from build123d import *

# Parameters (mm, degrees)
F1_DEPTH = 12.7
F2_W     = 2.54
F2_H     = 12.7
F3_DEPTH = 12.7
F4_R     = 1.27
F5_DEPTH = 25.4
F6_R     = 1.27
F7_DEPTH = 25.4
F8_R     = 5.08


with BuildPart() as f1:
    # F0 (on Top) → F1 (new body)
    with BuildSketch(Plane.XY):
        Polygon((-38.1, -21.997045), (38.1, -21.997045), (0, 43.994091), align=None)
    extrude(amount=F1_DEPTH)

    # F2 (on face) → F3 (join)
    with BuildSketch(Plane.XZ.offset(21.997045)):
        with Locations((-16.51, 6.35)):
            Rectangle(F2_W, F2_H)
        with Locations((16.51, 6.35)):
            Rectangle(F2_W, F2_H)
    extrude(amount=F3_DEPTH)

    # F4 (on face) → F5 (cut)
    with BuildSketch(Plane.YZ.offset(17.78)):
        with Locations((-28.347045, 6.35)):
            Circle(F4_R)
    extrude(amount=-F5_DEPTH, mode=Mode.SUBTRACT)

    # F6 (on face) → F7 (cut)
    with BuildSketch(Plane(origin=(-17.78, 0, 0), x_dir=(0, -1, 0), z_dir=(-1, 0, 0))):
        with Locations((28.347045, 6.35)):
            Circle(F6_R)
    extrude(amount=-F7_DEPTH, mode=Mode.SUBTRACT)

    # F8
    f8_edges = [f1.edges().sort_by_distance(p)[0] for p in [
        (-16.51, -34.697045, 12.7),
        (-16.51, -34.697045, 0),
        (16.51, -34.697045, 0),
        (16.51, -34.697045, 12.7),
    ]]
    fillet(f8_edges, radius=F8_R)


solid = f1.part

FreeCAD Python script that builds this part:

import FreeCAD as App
import Part
import Sketcher

V = App.Vector
Q = App.Units.Quantity


def edges_at(feature, points):
    """Names of the edges that pass closest to the given points."""
    edges = feature.Shape.Edges
    near = lambda p: min(range(len(edges)), key=lambda i: edges[i].distToShape(Part.Vertex(*p))[0])
    return sorted({f"Edge{near(p) + 1}" for p in points})

doc = App.newDocument("Part")
body = doc.addObject("PartDesign::Body", "Body")

# Sketch on XY plane
sketch1 = body.newObject("Sketcher::SketchObject", "Sketch")
sketch1.AttachmentSupport = (doc.getObject("XY_Plane"), [""])
sketch1.MapMode = "FlatFace"
sketch1.addGeometry([
    Part.LineSegment(V(-38, -22, 0), V(38, -22, 0)),
    Part.LineSegment(V(38, -22, 0), V(0, 44, 0)),
    Part.LineSegment(V(0, 44, 0), V(-38, -22, 0)),
], False)
sketch1.addConstraint([
    Sketcher.Constraint("Coincident", 0, 2, 1, 1),
    Sketcher.Constraint("Coincident", 1, 2, 2, 1),
    Sketcher.Constraint("Coincident", 2, 2, 0, 1),
    Sketcher.Constraint("Horizontal", 0),
    Sketcher.Constraint("PointOnObject", 1, 2, -2),
    Sketcher.Constraint("Equal", 1, 2),
    Sketcher.Constraint("DistanceX", 0, 1, 0, 2, Q("3 in")),
    Sketcher.Constraint("Distance", 1, Q("3 in")),
    Sketcher.Constraint("DistanceY", -1, 1, 1, 2, 43.994091),
])
pad1 = body.newObject("PartDesign::Pad", "Pad")
pad1.Profile = sketch1
pad1.Length = Q("0.5 in")

# Sketch on XZ plane
sketch2 = body.newObject("Sketcher::SketchObject", "Sketch001")
sketch2.AttachmentSupport = (doc.getObject("XZ_Plane"), [""])
sketch2.MapMode = "FlatFace"
sketch2.AttachmentOffset = App.Placement(V(0, 0, 21.997045), App.Rotation())
sketch2.addGeometry([
    Part.LineSegment(V(-17.8, 12.7, 0), V(-17.8, 0, 0)),  # 0
    Part.LineSegment(V(-17.8, 0, 0), V(-15.2, 0, 0)),  # 1
    Part.LineSegment(V(-15.2, 0, 0), V(-15.2, 12.7, 0)),  # 2
    Part.LineSegment(V(-15.2, 12.7, 0), V(-17.8, 12.7, 0)),  # 3
    Part.LineSegment(V(15.2, 12.7, 0), V(15.2, 0, 0)),  # 4
    Part.LineSegment(V(15.2, 0, 0), V(17.8, 0, 0)),  # 5
    Part.LineSegment(V(17.8, 0, 0), V(17.8, 12.7, 0)),  # 6
    Part.LineSegment(V(17.8, 12.7, 0), V(15.2, 12.7, 0)),  # 7
], False)
sketch2.addConstraint([
    Sketcher.Constraint("Coincident", 0, 2, 1, 1),
    Sketcher.Constraint("Coincident", 1, 2, 2, 1),
    Sketcher.Constraint("Coincident", 2, 2, 3, 1),
    Sketcher.Constraint("Coincident", 3, 2, 0, 1),
    Sketcher.Constraint("Coincident", 4, 2, 5, 1),
    Sketcher.Constraint("Coincident", 5, 2, 6, 1),
    Sketcher.Constraint("Coincident", 6, 2, 7, 1),
    Sketcher.Constraint("Coincident", 7, 2, 4, 1),
    Sketcher.Constraint("Vertical", 0),
    Sketcher.Constraint("Horizontal", 1),
    Sketcher.Constraint("Vertical", 2),
    Sketcher.Constraint("Horizontal", 3),
    Sketcher.Constraint("Vertical", 4),
    Sketcher.Constraint("Horizontal", 5),
    Sketcher.Constraint("Vertical", 6),
    Sketcher.Constraint("Horizontal", 7),
    Sketcher.Constraint("Symmetric", 1, 2, 4, 2, -1, 1),
    Sketcher.Constraint("Symmetric", 0, 2, 5, 2, -2),
    Sketcher.Constraint("Horizontal", 3, 2, 6, 2),
    Sketcher.Constraint("DistanceX", 1, 1, 1, 2, Q("0.1 in")),
    Sketcher.Constraint("DistanceY", 0, 2, 0, 1, Q("0.5 in")),
    Sketcher.Constraint("DistanceX", 0, 2, -1, 1, Q("0.7 in")),
])
pad2 = body.newObject("PartDesign::Pad", "Pad001")
pad2.Profile = sketch2
pad2.Length = Q("0.5 in")

# Sketch on YZ plane
sketch3 = body.newObject("Sketcher::SketchObject", "Sketch002")
sketch3.AttachmentSupport = (doc.getObject("YZ_Plane"), [""])
sketch3.MapMode = "FlatFace"
sketch3.AttachmentOffset = App.Placement(V(0, 0, 0.7 * 25.4), App.Rotation())
sketch3.addGeometry(Part.Circle(V(-28.3, 6.3, 0), V(0, 0, 1), 1.3), False)
sketch3.addConstraint([
    Sketcher.Constraint("Diameter", 0, Q("0.1 in")),
    Sketcher.Constraint("DistanceY", -1, 1, 0, 3, Q("0.25 in")),
    Sketcher.Constraint("DistanceX", 0, 3, -1, 1, 28.347045),
])
pocket1 = body.newObject("PartDesign::Pocket", "Pocket")
pocket1.Profile = sketch3
pocket1.Length = Q("1 in")

# Sketch on YZ plane
sketch4 = body.newObject("Sketcher::SketchObject", "Sketch003")
sketch4.AttachmentSupport = (doc.getObject("YZ_Plane"), [""])
sketch4.MapMode = "FlatFace"
sketch4.AttachmentOffset = App.Placement(V(0, 0, -0.7 * 25.4), App.Rotation())
sketch4.addGeometry(Part.Circle(V(-28.3, 6.3, 0), V(0, 0, 1), 1.3), False)
sketch4.addConstraint([
    Sketcher.Constraint("Diameter", 0, Q("0.1 in")),
    Sketcher.Constraint("DistanceY", -1, 1, 0, 3, Q("0.25 in")),
    Sketcher.Constraint("DistanceX", 0, 3, -1, 1, 28.347045),
])
pocket2 = body.newObject("PartDesign::Pocket", "Pocket001")
pocket2.Profile = sketch4
pocket2.Length = Q("1 in")
pocket2.Reversed = True
doc.recompute()

fillet = body.newObject("PartDesign::Fillet", "Fillet")
fillet.Base = (pocket2, edges_at(pocket2, [
    (-16.51, -34.697, 12.7),
    (-16.51, -34.697, 0),
    (16.51, -34.697, 0),
    (16.51, -34.697, 12.7),
]))
fillet.Radius = Q("0.2 in")

doc.recompute()
